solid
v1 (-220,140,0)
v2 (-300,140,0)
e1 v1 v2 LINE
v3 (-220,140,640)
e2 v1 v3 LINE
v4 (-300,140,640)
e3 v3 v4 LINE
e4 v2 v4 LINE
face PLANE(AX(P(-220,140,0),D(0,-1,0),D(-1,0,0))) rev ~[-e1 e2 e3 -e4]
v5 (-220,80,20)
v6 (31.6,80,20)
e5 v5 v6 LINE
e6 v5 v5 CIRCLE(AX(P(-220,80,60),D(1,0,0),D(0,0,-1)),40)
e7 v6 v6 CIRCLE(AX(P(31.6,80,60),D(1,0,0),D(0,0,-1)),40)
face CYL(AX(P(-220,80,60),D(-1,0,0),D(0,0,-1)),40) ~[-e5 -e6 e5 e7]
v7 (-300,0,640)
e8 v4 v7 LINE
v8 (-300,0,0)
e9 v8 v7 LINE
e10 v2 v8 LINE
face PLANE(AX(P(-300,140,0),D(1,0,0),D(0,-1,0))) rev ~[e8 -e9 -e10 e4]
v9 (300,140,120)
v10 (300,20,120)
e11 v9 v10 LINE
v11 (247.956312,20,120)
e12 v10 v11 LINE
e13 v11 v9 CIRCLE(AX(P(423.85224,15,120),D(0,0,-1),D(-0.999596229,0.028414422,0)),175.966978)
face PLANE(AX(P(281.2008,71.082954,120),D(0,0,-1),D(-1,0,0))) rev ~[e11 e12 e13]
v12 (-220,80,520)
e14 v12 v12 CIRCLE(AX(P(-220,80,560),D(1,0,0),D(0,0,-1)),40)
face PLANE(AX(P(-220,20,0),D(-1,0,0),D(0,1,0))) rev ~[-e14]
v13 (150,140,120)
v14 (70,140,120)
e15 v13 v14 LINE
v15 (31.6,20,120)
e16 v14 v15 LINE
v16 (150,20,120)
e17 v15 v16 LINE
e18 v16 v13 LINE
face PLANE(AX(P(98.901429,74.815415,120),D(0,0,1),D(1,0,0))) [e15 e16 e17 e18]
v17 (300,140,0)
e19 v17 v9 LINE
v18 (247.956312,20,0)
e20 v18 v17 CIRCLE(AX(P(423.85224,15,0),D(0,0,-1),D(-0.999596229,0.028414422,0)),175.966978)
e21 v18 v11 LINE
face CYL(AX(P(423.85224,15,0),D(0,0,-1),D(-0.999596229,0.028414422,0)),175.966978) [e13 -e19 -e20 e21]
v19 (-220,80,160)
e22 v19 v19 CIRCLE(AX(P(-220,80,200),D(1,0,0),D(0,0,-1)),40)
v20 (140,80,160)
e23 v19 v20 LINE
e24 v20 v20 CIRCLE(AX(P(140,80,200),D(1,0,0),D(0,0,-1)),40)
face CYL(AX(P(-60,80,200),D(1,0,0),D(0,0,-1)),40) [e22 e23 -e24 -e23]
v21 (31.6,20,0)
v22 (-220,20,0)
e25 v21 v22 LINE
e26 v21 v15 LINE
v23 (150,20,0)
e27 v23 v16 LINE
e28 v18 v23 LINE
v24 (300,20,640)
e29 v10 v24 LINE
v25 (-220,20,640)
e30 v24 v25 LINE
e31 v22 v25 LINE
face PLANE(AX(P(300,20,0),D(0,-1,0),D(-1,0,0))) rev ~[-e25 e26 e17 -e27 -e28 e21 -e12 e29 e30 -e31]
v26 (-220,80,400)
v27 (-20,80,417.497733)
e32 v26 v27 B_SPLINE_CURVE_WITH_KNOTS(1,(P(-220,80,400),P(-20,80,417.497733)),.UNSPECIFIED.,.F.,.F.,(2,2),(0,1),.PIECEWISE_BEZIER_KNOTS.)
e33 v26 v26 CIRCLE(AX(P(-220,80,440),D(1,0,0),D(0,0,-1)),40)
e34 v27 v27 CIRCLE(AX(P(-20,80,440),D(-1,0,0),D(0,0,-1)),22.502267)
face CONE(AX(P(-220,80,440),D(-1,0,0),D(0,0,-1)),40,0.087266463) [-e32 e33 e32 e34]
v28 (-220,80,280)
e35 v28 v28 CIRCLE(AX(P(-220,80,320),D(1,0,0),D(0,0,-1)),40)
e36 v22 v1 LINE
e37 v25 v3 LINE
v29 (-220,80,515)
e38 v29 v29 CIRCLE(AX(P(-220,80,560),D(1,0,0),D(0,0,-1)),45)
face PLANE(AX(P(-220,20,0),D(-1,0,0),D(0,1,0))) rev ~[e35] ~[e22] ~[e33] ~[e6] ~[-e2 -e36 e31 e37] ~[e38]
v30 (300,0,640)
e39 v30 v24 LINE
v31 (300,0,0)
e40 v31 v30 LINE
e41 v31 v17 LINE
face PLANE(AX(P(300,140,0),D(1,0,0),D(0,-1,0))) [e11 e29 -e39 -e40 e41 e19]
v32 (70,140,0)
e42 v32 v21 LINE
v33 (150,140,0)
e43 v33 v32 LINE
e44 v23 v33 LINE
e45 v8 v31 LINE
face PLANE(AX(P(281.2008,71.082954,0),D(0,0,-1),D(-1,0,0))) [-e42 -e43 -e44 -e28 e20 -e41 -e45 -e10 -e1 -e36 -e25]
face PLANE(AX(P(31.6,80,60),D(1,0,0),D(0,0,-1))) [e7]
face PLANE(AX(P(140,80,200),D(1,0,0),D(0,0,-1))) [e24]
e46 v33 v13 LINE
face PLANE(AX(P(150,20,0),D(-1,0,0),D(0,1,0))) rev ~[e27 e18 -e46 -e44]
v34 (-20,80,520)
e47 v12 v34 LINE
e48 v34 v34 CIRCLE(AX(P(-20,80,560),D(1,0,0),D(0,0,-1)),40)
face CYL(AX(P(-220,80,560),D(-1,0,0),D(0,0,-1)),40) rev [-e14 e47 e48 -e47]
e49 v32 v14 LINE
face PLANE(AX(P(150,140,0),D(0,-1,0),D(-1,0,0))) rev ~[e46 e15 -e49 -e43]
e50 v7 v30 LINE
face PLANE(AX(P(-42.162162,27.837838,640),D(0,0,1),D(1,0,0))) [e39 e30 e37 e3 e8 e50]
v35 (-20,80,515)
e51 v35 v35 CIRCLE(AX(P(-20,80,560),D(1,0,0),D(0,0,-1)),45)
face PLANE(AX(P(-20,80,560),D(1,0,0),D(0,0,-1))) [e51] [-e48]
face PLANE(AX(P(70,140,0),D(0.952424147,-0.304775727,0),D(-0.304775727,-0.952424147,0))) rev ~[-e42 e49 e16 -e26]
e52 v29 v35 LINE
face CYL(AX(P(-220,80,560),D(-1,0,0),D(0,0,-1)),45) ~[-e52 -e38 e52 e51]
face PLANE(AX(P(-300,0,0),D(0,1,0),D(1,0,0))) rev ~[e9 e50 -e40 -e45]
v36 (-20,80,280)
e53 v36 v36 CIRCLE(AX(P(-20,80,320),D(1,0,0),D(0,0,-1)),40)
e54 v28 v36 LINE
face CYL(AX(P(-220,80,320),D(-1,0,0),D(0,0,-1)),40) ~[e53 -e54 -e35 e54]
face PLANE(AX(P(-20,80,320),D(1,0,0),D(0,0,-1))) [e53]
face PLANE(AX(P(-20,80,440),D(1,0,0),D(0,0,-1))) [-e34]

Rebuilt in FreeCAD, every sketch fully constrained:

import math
import FreeCAD as App
import Part
import Sketcher


def add_polygon(sketch, points):
    """Adds a closed chain of lines whose ends are joined by coincident constraints."""
    first, n = sketch.GeometryCount, len(points)
    for a, b in zip(points, points[1:] + points[:1]):
        sketch.addGeometry(Part.LineSegment(App.Vector(*a, 0), App.Vector(*b, 0)), False)
    for i in range(n):
        sketch.addConstraint(Sketcher.Constraint("Coincident", first + i, 2, first + (i + 1) % n, 1))

doc = App.newDocument("Part")
params = doc.addObject("Spreadsheet::Sheet", "Params")
for row, (alias, value) in enumerate([
    ("sketch1_width", "600 mm"),
    ("sketch1_width2", "520 mm"),
    ("sketch1_height", "20 mm"),
    ("sketch1_height2", "120 mm"),
    ("pad1_length", "640 mm"),
    ("sketch2_width", "80 mm"),
    ("sketch2_height", "120 mm"),
    ("sketch2_width2", "118.4 mm"),
    ("pad2_length", "120 mm"),
    ("sketch3_diameter", "80 mm"),
    ("pad3_length", "251.6 mm"),
    ("sketch4_diameter", "80 mm"),
    ("pad4_length", "200 mm"),
    ("sketch5_diameter", "80 mm"),
    ("sketch6_diameter", "80 mm"),
    ("pad6_length", "200 mm"),
    ("sketch7_diameter", "80 mm"),
    ("pad7_length", "200 mm"),
    ("pad7_taper", "-5 deg"),
    ("sketch8_diameter", "90 mm"),
    ("sketch8_diameter2", "80 mm"),
    ("pad8_length", "200 mm"),
], start=1):
    params.set(f"A{row}", alias)
    params.set(f"B{row}", "=" + value)
    params.setAlias(f"B{row}", alias)

body = doc.addObject("PartDesign::Body", "Body")
body.AllowCompound = True

# Sketch on XY plane
sketch1 = body.newObject("Sketcher::SketchObject", "Sketch")
sketch1.AttachmentSupport = (doc.getObject("XY_Plane"), [""])
sketch1.MapMode = "FlatFace"
add_polygon(sketch1, [(-300, 0), (300, 0), (300, 20), (-220, 20), (-220, 140), (-300, 140)])  # lines 0-5
sketch1.addConstraint([
    Sketcher.Constraint("Horizontal", 0),
    Sketcher.Constraint("Vertical", 1),
    Sketcher.Constraint("Horizontal", 2),
    Sketcher.Constraint("Vertical", 3),
    Sketcher.Constraint("Horizontal", 4),
    Sketcher.Constraint("Vertical", 5),
    Sketcher.Constraint("Symmetric", 0, 2, 5, 2, -1, 1),
    Sketcher.Constraint("DistanceX", 0, 1, 0, 2, 600.0),
    Sketcher.Constraint("DistanceX", 2, 2, 2, 1, 520.0),
    Sketcher.Constraint("DistanceY", 1, 1, 1, 2, 20.0),
    Sketcher.Constraint("DistanceY", 3, 1, 3, 2, 120.0),
])
sketch1.setExpression("Constraints[13]", "Params.sketch1_width")
sketch1.setExpression("Constraints[14]", "Params.sketch1_width2")
sketch1.setExpression("Constraints[15]", "Params.sketch1_height")
sketch1.setExpression("Constraints[16]", "Params.sketch1_height2")
pad1 = body.newObject("PartDesign::Pad", "Pad")
pad1.Profile = sketch1
pad1.setExpression("Length", "Params.pad1_length")

# Sketch on XY plane
sketch2 = body.newObject("Sketcher::SketchObject", "Sketch001")
sketch2.AttachmentSupport = (doc.getObject("XY_Plane"), [""])
sketch2.MapMode = "FlatFace"
sketch2.addGeometry(Part.LineSegment(App.Vector(300, 20, 0), App.Vector(300, 140, 0)), False)  # 0
sketch2.addGeometry(Part.ArcOfCircle(Part.Circle(App.Vector(424, 15, 0), App.Vector(0, 0, 1), 176), math.radians(135), math.radians(178)), False)  # 1
sketch2.addGeometry(Part.LineSegment(App.Vector(248, 20, 0), App.Vector(300, 20, 0)), False)  # 2
add_polygon(sketch2, [(150, 140), (70, 140), (32, 20), (150, 20)])  # lines 3-6
sketch2.addConstraint([
    Sketcher.Constraint("Coincident", 0, 2, 1, 1),
    Sketcher.Constraint("Coincident", 1, 2, 2, 1),
    Sketcher.Constraint("Coincident", 2, 2, 0, 1),
    Sketcher.Constraint("Vertical", 0),
    Sketcher.Constraint("Horizontal", 2),
    Sketcher.Constraint("Horizontal", 3),
    Sketcher.Constraint("Horizontal", 5),
    Sketcher.Constraint("Vertical", 6),
    Sketcher.Constraint("Horizontal", 0, 2, 3, 2),
    Sketcher.Constraint("Horizontal", 2, 2, 4, 2),
    Sketcher.Constraint("DistanceX", 3, 2, 3, 1, 80.0),
    Sketcher.Constraint("DistanceY", 0, 1, 0, 2, 120.0),
    Sketcher.Constraint("DistanceX", 5, 1, 5, 2, 118.4),
    Sketcher.Constraint("DistanceY", -1, 1, 1, 3, 15.0),
    Sketcher.Constraint("DistanceX", -1, 1, 0, 2, 300.0),
    Sketcher.Constraint("DistanceY", -1, 1, 0, 2, 140.0),
    Sketcher.Constraint("DistanceX", -1, 1, 3, 2, 70.0),
    Sketcher.Constraint("Radius", 1, 175.966978),
])
sketch2.setExpression("Constraints[14]", "Params.sketch2_width")
sketch2.setExpression("Constraints[15]", "Params.sketch2_height")
sketch2.setExpression("Constraints[16]", "Params.sketch2_width2")
pad2 = body.newObject("PartDesign::Pad", "Pad001")
pad2.Profile = sketch2
pad2.setExpression("Length", "Params.pad2_length")

# Sketch on YZ plane
sketch3 = body.newObject("Sketcher::SketchObject", "Sketch002")
sketch3.AttachmentSupport = (doc.getObject("YZ_Plane"), [""])
sketch3.MapMode = "FlatFace"
sketch3.AttachmentOffset = App.Placement(App.Vector(0, 0, -220), App.Rotation())
sketch3.addGeometry(Part.Circle(App.Vector(80, 60, 0), App.Vector(0, 0, 1), 40), False)
sketch3.addConstraint([
    Sketcher.Constraint("Diameter", 0, 80.0),
    Sketcher.Constraint("DistanceX", -1, 1, 0, 3, 80.0),
    Sketcher.Constraint("DistanceY", -1, 1, 0, 3, 60.0),
])
sketch3.setExpression("Constraints[0]", "Params.sketch3_diameter")
pad3 = body.newObject("PartDesign::Pad", "Pad002")
pad3.Profile = sketch3
pad3.setExpression("Length", "Params.pad3_length")

# Sketch on YZ plane
sketch4 = body.newObject("Sketcher::SketchObject", "Sketch003")
sketch4.AttachmentSupport = (doc.getObject("YZ_Plane"), [""])
sketch4.MapMode = "FlatFace"
sketch4.AttachmentOffset = App.Placement(App.Vector(0, 0, -60), App.Rotation())
sketch4.addGeometry(Part.Circle(App.Vector(80, 200, 0), App.Vector(0, 0, 1), 40), False)
sketch4.addConstraint([
    Sketcher.Constraint("Diameter", 0, 80.0),
    Sketcher.Constraint("DistanceX", -1, 1, 0, 3, 80.0),
    Sketcher.Constraint("DistanceY", -1, 1, 0, 3, 200.0),
])
sketch4.setExpression("Constraints[0]", "Params.sketch4_diameter")
pad4 = body.newObject("PartDesign::Pad", "Pad003")
pad4.Profile = sketch4
pad4.setExpression("Length", "Params.pad4_length")

# Sketch on YZ plane
sketch5 = body.newObject("Sketcher::SketchObject", "Sketch004")
sketch5.AttachmentSupport = (doc.getObject("YZ_Plane"), [""])
sketch5.MapMode = "FlatFace"
sketch5.AttachmentOffset = App.Placement(App.Vector(0, 0, -60), App.Rotation())
sketch5.addGeometry(Part.Circle(App.Vector(80, 200, 0), App.Vector(0, 0, 1), 40), False)
sketch5.addConstraint([
    Sketcher.Constraint("Diameter", 0, 80.0),
    Sketcher.Constraint("DistanceX", -1, 1, 0, 3, 80.0),
    Sketcher.Constraint("DistanceY", -1, 1, 0, 3, 200.0),
])
sketch5.setExpression("Constraints[0]", "Params.sketch5_diameter")
pad5 = body.newObject("PartDesign::Pad", "Pad004")
pad5.Profile = sketch5
pad5.Type = "UpToFirst"
pad5.Reversed = True

# Sketch on YZ plane
sketch6 = body.newObject("Sketcher::SketchObject", "Sketch005")
sketch6.AttachmentSupport = (doc.getObject("YZ_Plane"), [""])
sketch6.MapMode = "FlatFace"
sketch6.AttachmentOffset = App.Placement(App.Vector(0, 0, -220), App.Rotation())
sketch6.addGeometry(Part.Circle(App.Vector(80, 320, 0), App.Vector(0, 0, 1), 40), False)
sketch6.addConstraint([
    Sketcher.Constraint("Diameter", 0, 80.0),
    Sketcher.Constraint("DistanceX", -1, 1, 0, 3, 80.0),
    Sketcher.Constraint("DistanceY", -1, 1, 0, 3, 320.0),
])
sketch6.setExpression("Constraints[0]", "Params.sketch6_diameter")
pad6 = body.newObject("PartDesign::Pad", "Pad005")
pad6.Profile = sketch6
pad6.setExpression("Length", "Params.pad6_length")

# Sketch on YZ plane
sketch7 = body.newObject("Sketcher::SketchObject", "Sketch006")
sketch7.AttachmentSupport = (doc.getObject("YZ_Plane"), [""])
sketch7.MapMode = "FlatFace"
sketch7.AttachmentOffset = App.Placement(App.Vector(0, 0, -220), App.Rotation())
sketch7.addGeometry(Part.Circle(App.Vector(80, 440, 0), App.Vector(0, 0, 1), 40), False)
sketch7.addConstraint([
    Sketcher.Constraint("Diameter", 0, 80.0),
    Sketcher.Constraint("DistanceX", -1, 1, 0, 3, 80.0),
    Sketcher.Constraint("DistanceY", -1, 1, 0, 3, 440.0),
])
sketch7.setExpression("Constraints[0]", "Params.sketch7_diameter")
pad7 = body.newObject("PartDesign::Pad", "Pad006")
pad7.Profile = sketch7
pad7.setExpression("Length", "Params.pad7_length")
pad7.setExpression("TaperAngle", "Params.pad7_taper")

# Sketch on YZ plane
sketch8 = body.newObject("Sketcher::SketchObject", "Sketch007")
sketch8.AttachmentSupport = (doc.getObject("YZ_Plane"), [""])
sketch8.MapMode = "FlatFace"
sketch8.AttachmentOffset = App.Placement(App.Vector(0, 0, -220), App.Rotation())
sketch8.addGeometry([
    Part.Circle(App.Vector(80, 560, 0), App.Vector(0, 0, 1), 45),
    Part.Circle(App.Vector(80, 560, 0), App.Vector(0, 0, 1), 40),
], False)
sketch8.addConstraint([
    Sketcher.Constraint("Coincident", 1, 3, 0, 3),
    Sketcher.Constraint("Diameter", 0, 90.0),
    Sketcher.Constraint("Diameter", 1, 80.0),
    Sketcher.Constraint("DistanceX", -1, 1, 0, 3, 80.0),
    Sketcher.Constraint("DistanceY", -1, 1, 0, 3, 560.0),
])
sketch8.setExpression("Constraints[1]", "Params.sketch8_diameter")
sketch8.setExpression("Constraints[2]", "Params.sketch8_diameter2")
pad8 = body.newObject("PartDesign::Pad", "Pad007")
pad8.Profile = sketch8
pad8.setExpression("Length", "Params.pad8_length")

doc.recompute()
